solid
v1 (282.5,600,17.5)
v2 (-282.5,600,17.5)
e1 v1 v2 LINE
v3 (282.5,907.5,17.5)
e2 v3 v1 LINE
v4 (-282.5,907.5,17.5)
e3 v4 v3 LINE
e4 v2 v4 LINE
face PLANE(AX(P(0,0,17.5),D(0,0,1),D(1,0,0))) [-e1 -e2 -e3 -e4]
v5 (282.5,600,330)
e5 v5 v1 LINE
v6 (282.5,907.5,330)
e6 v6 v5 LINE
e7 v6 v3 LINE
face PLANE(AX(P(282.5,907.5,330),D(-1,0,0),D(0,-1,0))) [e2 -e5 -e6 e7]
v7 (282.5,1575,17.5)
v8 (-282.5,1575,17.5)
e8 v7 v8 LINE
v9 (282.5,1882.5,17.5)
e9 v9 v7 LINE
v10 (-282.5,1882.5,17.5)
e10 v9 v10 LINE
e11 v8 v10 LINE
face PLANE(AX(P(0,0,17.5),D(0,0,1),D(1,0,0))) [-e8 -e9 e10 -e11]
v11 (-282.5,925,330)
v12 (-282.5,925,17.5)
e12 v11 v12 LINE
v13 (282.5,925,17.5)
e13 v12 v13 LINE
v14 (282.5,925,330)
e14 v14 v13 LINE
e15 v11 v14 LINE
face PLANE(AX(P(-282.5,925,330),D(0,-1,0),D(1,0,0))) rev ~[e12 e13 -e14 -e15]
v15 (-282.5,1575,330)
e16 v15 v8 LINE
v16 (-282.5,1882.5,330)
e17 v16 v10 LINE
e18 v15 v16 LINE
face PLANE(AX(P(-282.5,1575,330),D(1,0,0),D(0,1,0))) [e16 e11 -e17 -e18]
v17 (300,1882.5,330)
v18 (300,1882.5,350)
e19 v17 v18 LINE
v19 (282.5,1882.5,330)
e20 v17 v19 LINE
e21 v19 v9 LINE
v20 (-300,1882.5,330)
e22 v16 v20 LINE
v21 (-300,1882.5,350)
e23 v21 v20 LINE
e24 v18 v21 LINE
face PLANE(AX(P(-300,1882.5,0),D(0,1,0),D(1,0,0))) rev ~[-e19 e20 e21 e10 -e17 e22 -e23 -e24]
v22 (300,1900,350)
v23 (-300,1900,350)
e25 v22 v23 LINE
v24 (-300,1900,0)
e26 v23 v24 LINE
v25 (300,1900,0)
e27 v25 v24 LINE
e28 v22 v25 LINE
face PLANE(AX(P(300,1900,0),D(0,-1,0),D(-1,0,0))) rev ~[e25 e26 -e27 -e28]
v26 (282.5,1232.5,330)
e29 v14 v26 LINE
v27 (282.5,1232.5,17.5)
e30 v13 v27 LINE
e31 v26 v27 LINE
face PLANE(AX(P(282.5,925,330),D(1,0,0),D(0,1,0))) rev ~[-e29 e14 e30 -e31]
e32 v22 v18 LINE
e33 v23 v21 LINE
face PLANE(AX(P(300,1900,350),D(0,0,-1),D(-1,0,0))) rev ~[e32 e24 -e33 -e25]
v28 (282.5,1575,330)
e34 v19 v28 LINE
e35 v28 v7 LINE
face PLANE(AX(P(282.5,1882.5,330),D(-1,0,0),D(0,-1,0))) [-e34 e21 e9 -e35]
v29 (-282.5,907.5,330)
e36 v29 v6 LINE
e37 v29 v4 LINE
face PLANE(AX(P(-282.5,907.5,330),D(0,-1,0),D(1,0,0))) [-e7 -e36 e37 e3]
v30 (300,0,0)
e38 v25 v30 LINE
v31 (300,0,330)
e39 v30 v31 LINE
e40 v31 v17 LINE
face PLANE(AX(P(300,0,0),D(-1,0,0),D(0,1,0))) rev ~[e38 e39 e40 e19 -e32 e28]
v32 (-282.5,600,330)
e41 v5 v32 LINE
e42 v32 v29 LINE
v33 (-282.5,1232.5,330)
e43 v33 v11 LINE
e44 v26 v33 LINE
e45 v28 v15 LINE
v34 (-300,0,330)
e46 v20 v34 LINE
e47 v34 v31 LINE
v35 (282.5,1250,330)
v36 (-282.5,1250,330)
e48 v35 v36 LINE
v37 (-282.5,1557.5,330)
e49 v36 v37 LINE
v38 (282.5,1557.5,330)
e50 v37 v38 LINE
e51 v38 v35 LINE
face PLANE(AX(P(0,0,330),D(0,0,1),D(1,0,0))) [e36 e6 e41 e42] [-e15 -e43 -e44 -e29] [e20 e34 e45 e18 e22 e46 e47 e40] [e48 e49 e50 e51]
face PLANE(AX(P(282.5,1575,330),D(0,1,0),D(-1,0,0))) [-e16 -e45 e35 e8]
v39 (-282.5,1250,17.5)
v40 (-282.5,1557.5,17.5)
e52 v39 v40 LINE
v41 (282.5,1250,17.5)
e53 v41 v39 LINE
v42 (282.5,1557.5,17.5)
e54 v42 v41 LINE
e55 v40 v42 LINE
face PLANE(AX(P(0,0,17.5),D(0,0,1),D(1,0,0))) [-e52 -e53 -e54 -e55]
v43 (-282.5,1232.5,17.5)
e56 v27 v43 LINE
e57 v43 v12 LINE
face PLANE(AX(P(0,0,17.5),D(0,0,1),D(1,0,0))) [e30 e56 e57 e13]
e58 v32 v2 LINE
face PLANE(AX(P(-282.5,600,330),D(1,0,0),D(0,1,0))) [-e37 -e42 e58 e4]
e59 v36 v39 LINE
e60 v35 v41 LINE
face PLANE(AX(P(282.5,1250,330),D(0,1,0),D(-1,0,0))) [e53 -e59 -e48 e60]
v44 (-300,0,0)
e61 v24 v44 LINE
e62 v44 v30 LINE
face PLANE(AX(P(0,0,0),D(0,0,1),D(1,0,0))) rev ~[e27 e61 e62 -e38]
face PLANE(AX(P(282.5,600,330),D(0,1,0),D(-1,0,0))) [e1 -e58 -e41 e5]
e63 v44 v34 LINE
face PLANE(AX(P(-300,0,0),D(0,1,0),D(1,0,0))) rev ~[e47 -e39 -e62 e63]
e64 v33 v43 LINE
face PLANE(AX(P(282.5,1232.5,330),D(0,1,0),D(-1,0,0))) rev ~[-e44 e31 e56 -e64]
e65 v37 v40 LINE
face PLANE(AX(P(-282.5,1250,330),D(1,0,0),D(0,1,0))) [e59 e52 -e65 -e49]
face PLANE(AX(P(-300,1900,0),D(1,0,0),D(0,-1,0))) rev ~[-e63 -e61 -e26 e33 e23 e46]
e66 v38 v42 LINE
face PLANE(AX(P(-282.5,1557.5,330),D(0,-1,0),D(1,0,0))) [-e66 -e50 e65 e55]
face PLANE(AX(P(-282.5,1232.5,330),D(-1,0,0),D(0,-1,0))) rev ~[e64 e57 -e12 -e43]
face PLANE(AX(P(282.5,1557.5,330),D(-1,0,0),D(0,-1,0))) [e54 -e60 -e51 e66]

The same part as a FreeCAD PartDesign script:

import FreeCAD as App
import Part
import Sketcher
from FreeCAD import Vector
Q = App.Units.Quantity


def add_polygon(sketch, points):
    """Adds a closed chain of lines whose ends are joined by coincident constraints."""
    first, n = sketch.GeometryCount, len(points)
    for a, b in zip(points, points[1:] + points[:1]):
        sketch.addGeometry(Part.LineSegment(App.Vector(*a, 0), App.Vector(*b, 0)), False)
    for i in range(n):
        sketch.addConstraint(Sketcher.Constraint("Coincident", first + i, 2, first + (i + 1) % n, 1))

doc = App.newDocument("Part")
body = doc.addObject("PartDesign::Body", "Body")

sketch1 = body.newObject("Sketcher::SketchObject", "Sketch")
sketch1.AttachmentSupport = (doc.getObject("XY_Plane"), [""])
sketch1.MapMode = "FlatFace"
add_polygon(sketch1, [(-300, 1900), (-300, 0), (300, 0), (300, 1900)])
sketch1.addConstraint(Sketcher.Constraint("Vertical", 0))
sketch1.addConstraint(Sketcher.Constraint("Horizontal", 1))
sketch1.addConstraint(Sketcher.Constraint("Vertical", 2))
sketch1.addConstraint(Sketcher.Constraint("Horizontal", 3))
sketch1.addConstraint(Sketcher.Constraint("Symmetric", 0, 2, 1, 2, -1, 1))
sketch1.addConstraint(Sketcher.Constraint("DistanceX", 1, 1, 1, 2, Q("600 mm")))
sketch1.addConstraint(Sketcher.Constraint("DistanceY", 0, 2, 0, 1, Q("1900 mm")))
pad1 = body.newObject("PartDesign::Pad", "Pad")
pad1.Profile = sketch1
pad1.Length = 330

sketch2 = body.newObject("Sketcher::SketchObject", "Sketch001")
sketch2.AttachmentSupport = (doc.getObject("XZ_Plane"), [""])
sketch2.MapMode = "FlatFace"
sketch2.AttachmentOffset = App.Placement(Vector(0, 0, -1900), App.Rotation())
add_polygon(sketch2, [(300, 0), (-300, 0), (-300, 350), (300, 350)])
sketch2.addConstraint(Sketcher.Constraint("Horizontal", 0))
sketch2.addConstraint(Sketcher.Constraint("Vertical", 1))
sketch2.addConstraint(Sketcher.Constraint("Horizontal", 2))
sketch2.addConstraint(Sketcher.Constraint("Vertical", 3))
sketch2.addConstraint(Sketcher.Constraint("Symmetric", 0, 2, 3, 2, -1, 1))
sketch2.addConstraint(Sketcher.Constraint("DistanceY", 1, 1, 1, 2, Q("350 mm")))
sketch2.addConstraint(Sketcher.Constraint("DistanceX", 0, 2, 0, 1, Q("600 mm")))
pad2 = body.newObject("PartDesign::Pad", "Pad001")
pad2.Profile = sketch2
pad2.Length = 17.5

sketch3 = body.newObject("Sketcher::SketchObject", "Sketch002")
sketch3.AttachmentSupport = (doc.getObject("XY_Plane"), [""])
sketch3.MapMode = "FlatFace"
sketch3.AttachmentOffset = App.Placement(Vector(0, 0, 330), App.Rotation())
add_polygon(sketch3, [(282, 1575), (282, 1882), (-282, 1882), (-282, 1575)])
add_polygon(sketch3, [(282, 1558), (-282, 1558), (-282, 1250), (282, 1250)])
add_polygon(sketch3, [(282, 925), (282, 1232), (-282, 1232), (-282, 925)])
add_polygon(sketch3, [(282, 908), (-282, 908), (-282, 600), (282, 600)])
sketch3.addConstraint(Sketcher.Constraint("Vertical", 0))
sketch3.addConstraint(Sketcher.Constraint("Horizontal", 1))
sketch3.addConstraint(Sketcher.Constraint("Vertical", 2))
sketch3.addConstraint(Sketcher.Constraint("Horizontal", 3))
sketch3.addConstraint(Sketcher.Constraint("Horizontal", 4))
sketch3.addConstraint(Sketcher.Constraint("Vertical", 5))
sketch3.addConstraint(Sketcher.Constraint("Horizontal", 6))
sketch3.addConstraint(Sketcher.Constraint("Vertical", 7))
sketch3.addConstraint(Sketcher.Constraint("Vertical", 8))
sketch3.addConstraint(Sketcher.Constraint("Horizontal", 9))
sketch3.addConstraint(Sketcher.Constraint("Vertical", 10))
sketch3.addConstraint(Sketcher.Constraint("Horizontal", 11))
sketch3.addConstraint(Sketcher.Constraint("Horizontal", 12))
sketch3.addConstraint(Sketcher.Constraint("Vertical", 13))
sketch3.addConstraint(Sketcher.Constraint("Horizontal", 14))
sketch3.addConstraint(Sketcher.Constraint("Vertical", 15))
sketch3.addConstraint(Sketcher.Constraint("Vertical", 2, 2, 4, 2))
sketch3.addConstraint(Sketcher.Constraint("Vertical", 3, 2, 6, 2))
sketch3.addConstraint(Sketcher.Constraint("Vertical", 7, 2, 8, 2))
sketch3.addConstraint(Sketcher.Constraint("Vertical", 5, 2, 9, 2))
sketch3.addConstraint(Sketcher.Constraint("Vertical", 10, 2, 12, 2))
sketch3.addConstraint(Sketcher.Constraint("Vertical", 11, 2, 14, 2))
sketch3.addConstraint(Sketcher.Constraint("Equal", 2, 5))
sketch3.addConstraint(Sketcher.Constraint("Equal", 7, 8))
sketch3.addConstraint(Sketcher.Constraint("Equal", 10, 13))
sketch3.addConstraint(Sketcher.Constraint("DistanceX", 1, 2, 1, 1, Q("565 mm")))
sketch3.addConstraint(Sketcher.Constraint("DistanceY", -1, 1, 13, 2, Q("600 mm")))
sketch3.addConstraint(Sketcher.Constraint("DistanceY", 4, 2, 2, 2, Q("17.5 mm")))
sketch3.addConstraint(Sketcher.Constraint("DistanceY", 8, 2, 6, 2, Q("17.5 mm")))
sketch3.addConstraint(Sketcher.Constraint("DistanceY", 12, 2, 10, 2, Q("17.5 mm")))
sketch3.addConstraint(Sketcher.Constraint("DistanceY", 0, 1, 0, 2, Q("307.5 mm")))
sketch3.addConstraint(Sketcher.Constraint("DistanceX", -1, 1, 0, 2, Q("282.5 mm")))
pocket1 = body.newObject("PartDesign::Pocket", "Pocket")
pocket1.Profile = sketch3
pocket1.Length = 312.5

doc.recompute()
